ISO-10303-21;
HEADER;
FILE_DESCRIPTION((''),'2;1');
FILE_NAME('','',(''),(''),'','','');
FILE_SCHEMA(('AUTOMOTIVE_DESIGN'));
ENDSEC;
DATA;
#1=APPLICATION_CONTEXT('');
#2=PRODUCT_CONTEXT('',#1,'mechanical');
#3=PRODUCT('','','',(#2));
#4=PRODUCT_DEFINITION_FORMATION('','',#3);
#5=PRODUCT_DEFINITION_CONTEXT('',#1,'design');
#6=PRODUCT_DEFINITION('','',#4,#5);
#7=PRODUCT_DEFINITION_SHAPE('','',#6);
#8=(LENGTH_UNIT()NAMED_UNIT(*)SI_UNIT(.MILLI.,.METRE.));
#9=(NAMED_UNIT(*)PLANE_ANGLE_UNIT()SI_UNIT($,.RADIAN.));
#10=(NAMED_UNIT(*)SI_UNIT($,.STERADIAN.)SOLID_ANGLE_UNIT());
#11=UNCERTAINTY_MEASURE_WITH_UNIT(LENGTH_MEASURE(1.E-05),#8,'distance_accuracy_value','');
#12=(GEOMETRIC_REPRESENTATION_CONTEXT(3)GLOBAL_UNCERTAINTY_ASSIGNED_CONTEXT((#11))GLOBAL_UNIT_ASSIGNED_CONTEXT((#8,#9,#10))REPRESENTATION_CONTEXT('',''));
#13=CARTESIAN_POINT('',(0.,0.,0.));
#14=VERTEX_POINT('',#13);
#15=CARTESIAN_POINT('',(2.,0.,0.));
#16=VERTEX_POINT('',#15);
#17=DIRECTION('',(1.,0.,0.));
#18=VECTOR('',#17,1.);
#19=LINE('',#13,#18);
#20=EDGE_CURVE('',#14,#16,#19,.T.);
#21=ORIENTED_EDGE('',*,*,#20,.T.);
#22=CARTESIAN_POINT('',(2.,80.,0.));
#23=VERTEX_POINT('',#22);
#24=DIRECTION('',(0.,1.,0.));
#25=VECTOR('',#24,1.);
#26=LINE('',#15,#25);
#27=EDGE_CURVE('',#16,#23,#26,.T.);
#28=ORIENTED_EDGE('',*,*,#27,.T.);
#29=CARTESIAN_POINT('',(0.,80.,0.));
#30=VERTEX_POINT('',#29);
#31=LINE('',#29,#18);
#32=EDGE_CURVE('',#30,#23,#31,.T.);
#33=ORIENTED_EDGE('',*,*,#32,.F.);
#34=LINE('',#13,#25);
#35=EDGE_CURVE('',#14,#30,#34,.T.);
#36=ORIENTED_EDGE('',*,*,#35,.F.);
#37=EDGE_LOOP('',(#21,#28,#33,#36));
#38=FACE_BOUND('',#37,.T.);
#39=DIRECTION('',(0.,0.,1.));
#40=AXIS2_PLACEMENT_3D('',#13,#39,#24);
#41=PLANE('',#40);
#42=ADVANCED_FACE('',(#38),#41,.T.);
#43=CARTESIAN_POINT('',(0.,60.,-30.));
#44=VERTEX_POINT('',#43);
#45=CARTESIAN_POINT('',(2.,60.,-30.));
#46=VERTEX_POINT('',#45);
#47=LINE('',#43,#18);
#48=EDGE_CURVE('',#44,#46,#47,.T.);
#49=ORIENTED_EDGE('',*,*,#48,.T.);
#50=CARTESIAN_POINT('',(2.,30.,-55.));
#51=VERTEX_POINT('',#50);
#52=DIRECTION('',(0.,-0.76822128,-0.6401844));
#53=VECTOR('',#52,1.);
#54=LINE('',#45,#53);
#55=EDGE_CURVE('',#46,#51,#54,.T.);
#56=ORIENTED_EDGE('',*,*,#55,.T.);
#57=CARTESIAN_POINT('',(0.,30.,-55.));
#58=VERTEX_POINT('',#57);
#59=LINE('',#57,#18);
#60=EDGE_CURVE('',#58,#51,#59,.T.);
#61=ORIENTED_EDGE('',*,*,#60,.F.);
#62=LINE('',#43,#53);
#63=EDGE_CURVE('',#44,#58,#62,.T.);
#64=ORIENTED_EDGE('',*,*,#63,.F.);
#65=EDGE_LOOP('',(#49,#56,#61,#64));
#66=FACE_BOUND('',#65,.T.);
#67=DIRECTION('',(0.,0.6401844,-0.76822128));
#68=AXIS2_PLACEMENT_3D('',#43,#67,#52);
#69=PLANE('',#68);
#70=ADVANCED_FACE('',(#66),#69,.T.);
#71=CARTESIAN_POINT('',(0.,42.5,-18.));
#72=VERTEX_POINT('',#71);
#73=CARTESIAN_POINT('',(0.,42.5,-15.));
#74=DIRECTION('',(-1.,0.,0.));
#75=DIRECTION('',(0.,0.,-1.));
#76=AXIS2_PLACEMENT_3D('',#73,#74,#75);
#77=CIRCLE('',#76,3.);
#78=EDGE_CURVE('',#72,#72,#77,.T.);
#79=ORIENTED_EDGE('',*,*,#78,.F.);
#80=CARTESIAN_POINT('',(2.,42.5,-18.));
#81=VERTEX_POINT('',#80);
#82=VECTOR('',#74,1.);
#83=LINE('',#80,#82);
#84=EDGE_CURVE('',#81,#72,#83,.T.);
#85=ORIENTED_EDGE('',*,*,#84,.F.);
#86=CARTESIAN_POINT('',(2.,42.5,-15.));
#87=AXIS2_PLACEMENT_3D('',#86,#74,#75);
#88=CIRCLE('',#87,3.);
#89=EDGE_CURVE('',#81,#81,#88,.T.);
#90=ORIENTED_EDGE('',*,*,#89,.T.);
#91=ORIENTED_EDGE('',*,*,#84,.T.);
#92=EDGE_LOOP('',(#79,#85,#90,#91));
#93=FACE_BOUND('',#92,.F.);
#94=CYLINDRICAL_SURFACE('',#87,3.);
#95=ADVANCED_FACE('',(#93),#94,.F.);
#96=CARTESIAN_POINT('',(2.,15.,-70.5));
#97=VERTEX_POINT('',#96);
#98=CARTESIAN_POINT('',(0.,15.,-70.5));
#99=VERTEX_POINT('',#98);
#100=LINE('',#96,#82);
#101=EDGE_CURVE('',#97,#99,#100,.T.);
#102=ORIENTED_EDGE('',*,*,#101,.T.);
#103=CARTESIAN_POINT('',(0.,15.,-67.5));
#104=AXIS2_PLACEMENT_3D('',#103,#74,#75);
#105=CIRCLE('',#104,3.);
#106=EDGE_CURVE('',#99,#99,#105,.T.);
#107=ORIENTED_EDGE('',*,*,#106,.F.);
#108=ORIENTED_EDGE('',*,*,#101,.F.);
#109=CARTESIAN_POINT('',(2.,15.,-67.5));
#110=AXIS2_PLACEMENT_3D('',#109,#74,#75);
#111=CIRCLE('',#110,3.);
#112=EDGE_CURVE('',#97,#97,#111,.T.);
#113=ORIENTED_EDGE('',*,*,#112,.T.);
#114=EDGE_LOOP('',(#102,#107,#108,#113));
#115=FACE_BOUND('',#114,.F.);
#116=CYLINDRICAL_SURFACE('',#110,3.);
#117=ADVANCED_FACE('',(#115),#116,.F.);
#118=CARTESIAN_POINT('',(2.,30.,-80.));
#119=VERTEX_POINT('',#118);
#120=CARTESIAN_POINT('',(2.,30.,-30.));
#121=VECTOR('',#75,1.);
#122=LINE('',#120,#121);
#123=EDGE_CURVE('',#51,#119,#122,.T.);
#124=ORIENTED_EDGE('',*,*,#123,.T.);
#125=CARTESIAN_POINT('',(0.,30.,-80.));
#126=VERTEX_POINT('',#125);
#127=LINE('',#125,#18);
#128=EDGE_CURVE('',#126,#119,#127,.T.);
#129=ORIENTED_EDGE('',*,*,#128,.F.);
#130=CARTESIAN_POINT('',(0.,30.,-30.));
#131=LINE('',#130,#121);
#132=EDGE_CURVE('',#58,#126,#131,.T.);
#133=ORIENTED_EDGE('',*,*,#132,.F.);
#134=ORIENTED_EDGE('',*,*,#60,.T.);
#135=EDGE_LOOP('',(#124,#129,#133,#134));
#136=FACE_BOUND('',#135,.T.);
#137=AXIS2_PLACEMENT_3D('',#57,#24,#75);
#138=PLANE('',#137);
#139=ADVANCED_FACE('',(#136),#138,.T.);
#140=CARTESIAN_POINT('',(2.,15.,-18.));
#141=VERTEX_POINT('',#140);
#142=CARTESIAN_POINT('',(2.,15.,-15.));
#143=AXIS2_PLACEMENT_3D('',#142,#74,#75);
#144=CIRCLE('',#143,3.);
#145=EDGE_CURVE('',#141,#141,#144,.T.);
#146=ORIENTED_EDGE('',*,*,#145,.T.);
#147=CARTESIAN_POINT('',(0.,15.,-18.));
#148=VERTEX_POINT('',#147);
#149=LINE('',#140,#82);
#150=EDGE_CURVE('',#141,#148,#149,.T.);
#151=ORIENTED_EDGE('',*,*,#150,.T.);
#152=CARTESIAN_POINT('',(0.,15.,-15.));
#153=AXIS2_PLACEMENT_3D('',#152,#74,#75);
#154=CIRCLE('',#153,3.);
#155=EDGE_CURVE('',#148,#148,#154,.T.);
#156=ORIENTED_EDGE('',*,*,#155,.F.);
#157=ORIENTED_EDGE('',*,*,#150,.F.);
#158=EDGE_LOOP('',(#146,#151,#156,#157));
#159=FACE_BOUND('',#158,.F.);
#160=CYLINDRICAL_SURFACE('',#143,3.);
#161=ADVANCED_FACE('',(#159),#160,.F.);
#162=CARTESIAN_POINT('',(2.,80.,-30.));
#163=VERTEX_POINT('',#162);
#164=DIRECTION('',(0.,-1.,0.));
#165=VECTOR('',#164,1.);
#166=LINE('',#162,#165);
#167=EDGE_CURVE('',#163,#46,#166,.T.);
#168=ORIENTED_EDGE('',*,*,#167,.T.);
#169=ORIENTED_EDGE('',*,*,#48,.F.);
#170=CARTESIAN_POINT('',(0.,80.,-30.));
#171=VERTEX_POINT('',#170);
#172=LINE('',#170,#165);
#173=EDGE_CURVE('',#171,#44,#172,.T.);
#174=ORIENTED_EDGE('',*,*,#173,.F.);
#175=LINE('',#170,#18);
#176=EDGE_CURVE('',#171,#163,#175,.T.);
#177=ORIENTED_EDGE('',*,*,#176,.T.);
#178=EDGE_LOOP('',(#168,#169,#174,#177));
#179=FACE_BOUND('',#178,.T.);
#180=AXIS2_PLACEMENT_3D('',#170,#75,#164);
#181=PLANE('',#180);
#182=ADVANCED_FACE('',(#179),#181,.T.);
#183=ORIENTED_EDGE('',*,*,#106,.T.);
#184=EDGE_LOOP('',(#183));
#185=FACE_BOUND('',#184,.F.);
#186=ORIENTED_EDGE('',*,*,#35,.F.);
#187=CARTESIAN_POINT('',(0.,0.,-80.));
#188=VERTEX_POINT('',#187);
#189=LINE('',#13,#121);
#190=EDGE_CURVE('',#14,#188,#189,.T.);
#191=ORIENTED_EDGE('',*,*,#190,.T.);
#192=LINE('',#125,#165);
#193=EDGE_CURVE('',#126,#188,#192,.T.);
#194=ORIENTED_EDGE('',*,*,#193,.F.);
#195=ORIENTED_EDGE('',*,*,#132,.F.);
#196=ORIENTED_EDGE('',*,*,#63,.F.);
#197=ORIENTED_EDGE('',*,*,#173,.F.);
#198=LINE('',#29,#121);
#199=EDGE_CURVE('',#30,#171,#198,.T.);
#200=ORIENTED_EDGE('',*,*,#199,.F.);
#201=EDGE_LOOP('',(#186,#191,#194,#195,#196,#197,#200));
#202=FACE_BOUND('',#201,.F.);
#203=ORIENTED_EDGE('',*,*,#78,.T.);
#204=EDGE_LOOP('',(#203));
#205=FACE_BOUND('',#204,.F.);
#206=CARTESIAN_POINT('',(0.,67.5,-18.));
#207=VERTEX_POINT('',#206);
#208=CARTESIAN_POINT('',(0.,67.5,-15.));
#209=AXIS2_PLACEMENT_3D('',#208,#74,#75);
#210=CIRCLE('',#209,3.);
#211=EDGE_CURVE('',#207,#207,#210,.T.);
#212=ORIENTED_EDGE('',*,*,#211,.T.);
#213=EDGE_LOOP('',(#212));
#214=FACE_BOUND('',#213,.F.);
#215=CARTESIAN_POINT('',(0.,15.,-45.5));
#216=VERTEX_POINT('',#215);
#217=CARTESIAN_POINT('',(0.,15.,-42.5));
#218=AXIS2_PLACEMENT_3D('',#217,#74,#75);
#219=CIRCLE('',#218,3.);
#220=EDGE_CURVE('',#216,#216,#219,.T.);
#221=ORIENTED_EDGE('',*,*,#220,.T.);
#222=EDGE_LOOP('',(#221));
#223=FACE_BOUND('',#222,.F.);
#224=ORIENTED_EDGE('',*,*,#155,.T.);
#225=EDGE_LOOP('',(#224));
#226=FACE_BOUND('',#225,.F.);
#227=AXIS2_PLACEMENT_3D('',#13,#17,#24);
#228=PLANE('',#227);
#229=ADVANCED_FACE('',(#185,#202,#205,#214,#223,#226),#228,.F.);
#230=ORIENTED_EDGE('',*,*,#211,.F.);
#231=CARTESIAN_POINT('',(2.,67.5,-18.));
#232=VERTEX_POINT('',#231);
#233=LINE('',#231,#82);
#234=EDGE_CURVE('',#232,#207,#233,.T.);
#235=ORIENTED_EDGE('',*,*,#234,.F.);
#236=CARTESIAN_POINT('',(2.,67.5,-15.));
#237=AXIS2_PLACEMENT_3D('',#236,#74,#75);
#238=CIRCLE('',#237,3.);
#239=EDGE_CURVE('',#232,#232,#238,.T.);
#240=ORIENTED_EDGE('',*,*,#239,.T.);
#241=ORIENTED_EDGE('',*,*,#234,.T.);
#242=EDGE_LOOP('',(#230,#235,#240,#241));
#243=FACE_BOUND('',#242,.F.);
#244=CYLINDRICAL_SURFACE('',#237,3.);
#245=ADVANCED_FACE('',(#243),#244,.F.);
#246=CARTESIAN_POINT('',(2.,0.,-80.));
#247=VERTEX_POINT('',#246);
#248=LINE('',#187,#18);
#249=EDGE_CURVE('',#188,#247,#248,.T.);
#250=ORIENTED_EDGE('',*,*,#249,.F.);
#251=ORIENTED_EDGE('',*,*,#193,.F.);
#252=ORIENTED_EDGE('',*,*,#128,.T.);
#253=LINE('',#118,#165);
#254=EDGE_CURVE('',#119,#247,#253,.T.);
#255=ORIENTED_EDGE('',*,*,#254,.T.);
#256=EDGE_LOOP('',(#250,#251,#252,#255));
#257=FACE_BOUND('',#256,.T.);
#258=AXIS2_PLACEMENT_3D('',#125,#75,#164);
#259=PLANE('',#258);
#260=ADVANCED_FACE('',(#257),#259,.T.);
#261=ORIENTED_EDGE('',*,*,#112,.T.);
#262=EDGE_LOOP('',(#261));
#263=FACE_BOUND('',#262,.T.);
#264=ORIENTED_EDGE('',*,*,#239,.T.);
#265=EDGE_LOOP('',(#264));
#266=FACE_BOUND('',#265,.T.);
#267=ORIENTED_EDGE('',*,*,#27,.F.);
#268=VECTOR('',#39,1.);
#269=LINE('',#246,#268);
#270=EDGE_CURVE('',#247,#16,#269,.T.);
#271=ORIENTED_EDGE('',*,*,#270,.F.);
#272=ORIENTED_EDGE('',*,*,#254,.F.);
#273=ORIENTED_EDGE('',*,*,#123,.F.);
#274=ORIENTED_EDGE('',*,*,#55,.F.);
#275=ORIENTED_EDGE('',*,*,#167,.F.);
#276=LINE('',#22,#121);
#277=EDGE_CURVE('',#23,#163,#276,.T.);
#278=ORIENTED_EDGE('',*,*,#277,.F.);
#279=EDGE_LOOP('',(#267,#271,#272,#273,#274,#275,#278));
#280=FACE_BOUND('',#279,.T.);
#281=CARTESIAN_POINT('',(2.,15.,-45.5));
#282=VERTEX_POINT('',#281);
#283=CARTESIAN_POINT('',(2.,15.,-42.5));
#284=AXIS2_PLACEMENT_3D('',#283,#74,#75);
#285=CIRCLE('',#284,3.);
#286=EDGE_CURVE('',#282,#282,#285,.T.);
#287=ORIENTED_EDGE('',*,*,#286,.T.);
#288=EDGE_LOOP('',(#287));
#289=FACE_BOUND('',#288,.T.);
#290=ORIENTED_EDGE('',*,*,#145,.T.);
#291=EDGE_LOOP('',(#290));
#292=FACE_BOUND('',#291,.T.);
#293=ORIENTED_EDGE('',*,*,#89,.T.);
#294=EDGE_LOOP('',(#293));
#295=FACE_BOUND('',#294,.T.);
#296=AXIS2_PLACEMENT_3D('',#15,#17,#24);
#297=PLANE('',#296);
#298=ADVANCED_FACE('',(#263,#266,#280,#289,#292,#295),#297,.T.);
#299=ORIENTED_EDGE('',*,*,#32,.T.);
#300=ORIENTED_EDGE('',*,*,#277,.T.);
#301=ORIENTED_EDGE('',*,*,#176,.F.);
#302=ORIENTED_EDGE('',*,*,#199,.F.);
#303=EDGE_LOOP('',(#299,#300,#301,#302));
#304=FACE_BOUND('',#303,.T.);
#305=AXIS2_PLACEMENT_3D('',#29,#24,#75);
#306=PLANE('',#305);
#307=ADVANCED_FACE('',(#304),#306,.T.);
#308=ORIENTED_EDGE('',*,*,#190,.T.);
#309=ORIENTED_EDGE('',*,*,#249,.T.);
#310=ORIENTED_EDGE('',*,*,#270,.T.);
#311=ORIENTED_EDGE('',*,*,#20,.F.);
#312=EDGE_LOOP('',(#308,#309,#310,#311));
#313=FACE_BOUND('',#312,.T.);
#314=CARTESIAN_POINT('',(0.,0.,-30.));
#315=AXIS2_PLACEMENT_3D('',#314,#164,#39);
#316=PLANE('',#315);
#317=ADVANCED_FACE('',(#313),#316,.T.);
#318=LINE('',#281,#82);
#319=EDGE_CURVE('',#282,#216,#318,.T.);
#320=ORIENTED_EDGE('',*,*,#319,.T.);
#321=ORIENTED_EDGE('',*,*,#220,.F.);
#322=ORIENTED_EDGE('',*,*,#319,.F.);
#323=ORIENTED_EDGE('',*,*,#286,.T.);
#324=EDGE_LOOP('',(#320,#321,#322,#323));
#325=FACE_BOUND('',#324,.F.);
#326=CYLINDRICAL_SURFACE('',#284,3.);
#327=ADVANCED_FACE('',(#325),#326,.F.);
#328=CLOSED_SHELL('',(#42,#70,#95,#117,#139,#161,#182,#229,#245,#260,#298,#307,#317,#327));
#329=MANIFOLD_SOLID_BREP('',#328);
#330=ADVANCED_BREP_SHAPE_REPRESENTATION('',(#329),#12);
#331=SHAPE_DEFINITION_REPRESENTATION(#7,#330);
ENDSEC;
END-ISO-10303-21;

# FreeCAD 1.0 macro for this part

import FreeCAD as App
import Part
import Sketcher

V = App.Vector
Q = App.Units.Quantity

doc = App.newDocument("Part")
params = doc.addObject("Spreadsheet::Sheet", "Params")
for row, (alias, value) in enumerate([
    ("sketch1_width", "80 mm"),
    ("sketch1_width2", "30 mm"),
    ("sketch1_width3", "20 mm"),
    ("sketch1_height", "25 mm"),
    ("pad1_length", "2 mm"),
    ("sketch2_diameter", "6 mm"),
    ("hole_diameter", "6 mm"),
], start=1):
    params.set(f"A{row}", alias)
    params.set(f"B{row}", "=" + value)
    params.setAlias(f"B{row}", alias)

body = doc.addObject("PartDesign::Body", "Body")

# Sketch on YZ plane
sketch1 = body.newObject("Sketcher::SketchObject", "Sketch")
sketch1.AttachmentSupport = (doc.getObject("YZ_Plane"), [""])
sketch1.MapMode = "FlatFace"
sketch1.addGeometry(Part.LineSegment(V(80, 0, 0), V(0, 0, 0)), False)
sketch1.addGeometry(Part.LineSegment(V(0, 0, 0), V(0, -80, 0)), False)
sketch1.addGeometry(Part.LineSegment(V(0, -80, 0), V(30, -80, 0)), False)
sketch1.addGeometry(Part.LineSegment(V(30, -80, 0), V(30, -55, 0)), False)
sketch1.addGeometry(Part.LineSegment(V(30, -55, 0), V(60, -30, 0)), False)
sketch1.addGeometry(Part.LineSegment(V(60, -30, 0), V(80, -30, 0)), False)
sketch1.addGeometry(Part.LineSegment(V(80, -30, 0), V(80, 0, 0)), False)
sketch1.addConstraint(Sketcher.Constraint("Coincident", 0, 2, 1, 1))
sketch1.addConstraint(Sketcher.Constraint("Coincident", 1, 2, 2, 1))
sketch1.addConstraint(Sketcher.Constraint("Coincident", 2, 2, 3, 1))
sketch1.addConstraint(Sketcher.Constraint("Coincident", 3, 2, 4, 1))
sketch1.addConstraint(Sketcher.Constraint("Coincident", 4, 2, 5, 1))
sketch1.addConstraint(Sketcher.Constraint("Coincident", 5, 2, 6, 1))
sketch1.addConstraint(Sketcher.Constraint("Coincident", 6, 2, 0, 1))
sketch1.addConstraint(Sketcher.Constraint("Horizontal", 0))
sketch1.addConstraint(Sketcher.Constraint("Vertical", 1))
sketch1.addConstraint(Sketcher.Constraint("Horizontal", 2))
sketch1.addConstraint(Sketcher.Constraint("Vertical", 3))
sketch1.addConstraint(Sketcher.Constraint("Horizontal", 5))
sketch1.addConstraint(Sketcher.Constraint("Vertical", 6))
sketch1.addConstraint(Sketcher.Constraint("Coincident", 0, 2, -1, 1))
sketch1.addConstraint(Sketcher.Constraint("Equal", 0, 1))
sketch1.addConstraint(Sketcher.Constraint("Equal", 2, 6))
sketch1.addConstraint(Sketcher.Constraint("DistanceX", 0, 2, 0, 1, Q("80 mm")))
sketch1.addConstraint(Sketcher.Constraint("DistanceX", 2, 1, 2, 2, Q("30 mm")))
sketch1.addConstraint(Sketcher.Constraint("DistanceX", 5, 1, 5, 2, Q("20 mm")))
sketch1.addConstraint(Sketcher.Constraint("DistanceY", 3, 1, 3, 2, Q("25 mm")))
sketch1.setExpression("Constraints[16]", "Params.sketch1_width")
sketch1.setExpression("Constraints[17]", "Params.sketch1_width2")
sketch1.setExpression("Constraints[18]", "Params.sketch1_width3")
sketch1.setExpression("Constraints[19]", "Params.sketch1_height")
pad1 = body.newObject("PartDesign::Pad", "Pad")
pad1.Profile = sketch1
pad1.setExpression("Length", "Params.pad1_length")

# Sketch on YZ plane
sketch2 = body.newObject("Sketcher::SketchObject", "Sketch001")
sketch2.AttachmentSupport = (doc.getObject("YZ_Plane"), [""])
sketch2.MapMode = "FlatFace"
sketch2.AttachmentOffset = App.Placement(V(0, 0, 2), App.Rotation())
sketch2.addGeometry(Part.Circle(V(67.5, -15, 0), V(0, 0, 1), 3), False)
sketch2.addGeometry(Part.Circle(V(42.5, -15, 0), V(0, 0, 1), 3), False)
sketch2.addGeometry(Part.Circle(V(15, -15, 0), V(0, 0, 1), 3), False)
sketch2.addGeometry(Part.Circle(V(15, -42.5, 0), V(0, 0, 1), 3), False)
sketch2.addGeometry(Part.Circle(V(15, -67.5, 0), V(0, 0, 1), 3), False)
sketch2.addConstraint(Sketcher.Constraint("Equal", 0, 1))
sketch2.addConstraint(Sketcher.Constraint("Equal", 1, 2))
sketch2.addConstraint(Sketcher.Constraint("Equal", 2, 3))
sketch2.addConstraint(Sketcher.Constraint("Equal", 3, 4))
sketch2.addConstraint(Sketcher.Constraint("Horizontal", 0, 3, 1, 3))
sketch2.addConstraint(Sketcher.Constraint("Horizontal", 1, 3, 2, 3))
sketch2.addConstraint(Sketcher.Constraint("Vertical", 2, 3, 3, 3))
sketch2.addConstraint(Sketcher.Constraint("Vertical", 3, 3, 4, 3))
sketch2.addConstraint(Sketcher.Constraint("Diameter", 0, Q("6 mm")))
sketch2.addConstraint(Sketcher.Constraint("DistanceY", 0, 3, -1, 1, Q("15 mm")))
sketch2.addConstraint(Sketcher.Constraint("DistanceX", -1, 1, 2, 3, Q("15 mm")))
sketch2.addConstraint(Sketcher.Constraint("DistanceX", 1, 3, 0, 3, Q("25 mm")))
sketch2.addConstraint(Sketcher.Constraint("DistanceY", 4, 3, 3, 3, Q("25 mm")))
sketch2.addConstraint(Sketcher.Constraint("DistanceX", -1, 1, 0, 3, Q("67.5 mm")))
sketch2.addConstraint(Sketcher.Constraint("DistanceY", 3, 3, -1, 1, Q("42.5 mm")))
sketch2.setExpression("Constraints[8]", "Params.sketch2_diameter")
doc.recompute()
hole = body.newObject("PartDesign::Hole", "Hole")
hole.Profile = sketch2
hole.ThreadType = "None"
hole.setExpression("Diameter", "Params.hole_diameter")
hole.DepthType = "ThroughAll"

doc.recompute()
